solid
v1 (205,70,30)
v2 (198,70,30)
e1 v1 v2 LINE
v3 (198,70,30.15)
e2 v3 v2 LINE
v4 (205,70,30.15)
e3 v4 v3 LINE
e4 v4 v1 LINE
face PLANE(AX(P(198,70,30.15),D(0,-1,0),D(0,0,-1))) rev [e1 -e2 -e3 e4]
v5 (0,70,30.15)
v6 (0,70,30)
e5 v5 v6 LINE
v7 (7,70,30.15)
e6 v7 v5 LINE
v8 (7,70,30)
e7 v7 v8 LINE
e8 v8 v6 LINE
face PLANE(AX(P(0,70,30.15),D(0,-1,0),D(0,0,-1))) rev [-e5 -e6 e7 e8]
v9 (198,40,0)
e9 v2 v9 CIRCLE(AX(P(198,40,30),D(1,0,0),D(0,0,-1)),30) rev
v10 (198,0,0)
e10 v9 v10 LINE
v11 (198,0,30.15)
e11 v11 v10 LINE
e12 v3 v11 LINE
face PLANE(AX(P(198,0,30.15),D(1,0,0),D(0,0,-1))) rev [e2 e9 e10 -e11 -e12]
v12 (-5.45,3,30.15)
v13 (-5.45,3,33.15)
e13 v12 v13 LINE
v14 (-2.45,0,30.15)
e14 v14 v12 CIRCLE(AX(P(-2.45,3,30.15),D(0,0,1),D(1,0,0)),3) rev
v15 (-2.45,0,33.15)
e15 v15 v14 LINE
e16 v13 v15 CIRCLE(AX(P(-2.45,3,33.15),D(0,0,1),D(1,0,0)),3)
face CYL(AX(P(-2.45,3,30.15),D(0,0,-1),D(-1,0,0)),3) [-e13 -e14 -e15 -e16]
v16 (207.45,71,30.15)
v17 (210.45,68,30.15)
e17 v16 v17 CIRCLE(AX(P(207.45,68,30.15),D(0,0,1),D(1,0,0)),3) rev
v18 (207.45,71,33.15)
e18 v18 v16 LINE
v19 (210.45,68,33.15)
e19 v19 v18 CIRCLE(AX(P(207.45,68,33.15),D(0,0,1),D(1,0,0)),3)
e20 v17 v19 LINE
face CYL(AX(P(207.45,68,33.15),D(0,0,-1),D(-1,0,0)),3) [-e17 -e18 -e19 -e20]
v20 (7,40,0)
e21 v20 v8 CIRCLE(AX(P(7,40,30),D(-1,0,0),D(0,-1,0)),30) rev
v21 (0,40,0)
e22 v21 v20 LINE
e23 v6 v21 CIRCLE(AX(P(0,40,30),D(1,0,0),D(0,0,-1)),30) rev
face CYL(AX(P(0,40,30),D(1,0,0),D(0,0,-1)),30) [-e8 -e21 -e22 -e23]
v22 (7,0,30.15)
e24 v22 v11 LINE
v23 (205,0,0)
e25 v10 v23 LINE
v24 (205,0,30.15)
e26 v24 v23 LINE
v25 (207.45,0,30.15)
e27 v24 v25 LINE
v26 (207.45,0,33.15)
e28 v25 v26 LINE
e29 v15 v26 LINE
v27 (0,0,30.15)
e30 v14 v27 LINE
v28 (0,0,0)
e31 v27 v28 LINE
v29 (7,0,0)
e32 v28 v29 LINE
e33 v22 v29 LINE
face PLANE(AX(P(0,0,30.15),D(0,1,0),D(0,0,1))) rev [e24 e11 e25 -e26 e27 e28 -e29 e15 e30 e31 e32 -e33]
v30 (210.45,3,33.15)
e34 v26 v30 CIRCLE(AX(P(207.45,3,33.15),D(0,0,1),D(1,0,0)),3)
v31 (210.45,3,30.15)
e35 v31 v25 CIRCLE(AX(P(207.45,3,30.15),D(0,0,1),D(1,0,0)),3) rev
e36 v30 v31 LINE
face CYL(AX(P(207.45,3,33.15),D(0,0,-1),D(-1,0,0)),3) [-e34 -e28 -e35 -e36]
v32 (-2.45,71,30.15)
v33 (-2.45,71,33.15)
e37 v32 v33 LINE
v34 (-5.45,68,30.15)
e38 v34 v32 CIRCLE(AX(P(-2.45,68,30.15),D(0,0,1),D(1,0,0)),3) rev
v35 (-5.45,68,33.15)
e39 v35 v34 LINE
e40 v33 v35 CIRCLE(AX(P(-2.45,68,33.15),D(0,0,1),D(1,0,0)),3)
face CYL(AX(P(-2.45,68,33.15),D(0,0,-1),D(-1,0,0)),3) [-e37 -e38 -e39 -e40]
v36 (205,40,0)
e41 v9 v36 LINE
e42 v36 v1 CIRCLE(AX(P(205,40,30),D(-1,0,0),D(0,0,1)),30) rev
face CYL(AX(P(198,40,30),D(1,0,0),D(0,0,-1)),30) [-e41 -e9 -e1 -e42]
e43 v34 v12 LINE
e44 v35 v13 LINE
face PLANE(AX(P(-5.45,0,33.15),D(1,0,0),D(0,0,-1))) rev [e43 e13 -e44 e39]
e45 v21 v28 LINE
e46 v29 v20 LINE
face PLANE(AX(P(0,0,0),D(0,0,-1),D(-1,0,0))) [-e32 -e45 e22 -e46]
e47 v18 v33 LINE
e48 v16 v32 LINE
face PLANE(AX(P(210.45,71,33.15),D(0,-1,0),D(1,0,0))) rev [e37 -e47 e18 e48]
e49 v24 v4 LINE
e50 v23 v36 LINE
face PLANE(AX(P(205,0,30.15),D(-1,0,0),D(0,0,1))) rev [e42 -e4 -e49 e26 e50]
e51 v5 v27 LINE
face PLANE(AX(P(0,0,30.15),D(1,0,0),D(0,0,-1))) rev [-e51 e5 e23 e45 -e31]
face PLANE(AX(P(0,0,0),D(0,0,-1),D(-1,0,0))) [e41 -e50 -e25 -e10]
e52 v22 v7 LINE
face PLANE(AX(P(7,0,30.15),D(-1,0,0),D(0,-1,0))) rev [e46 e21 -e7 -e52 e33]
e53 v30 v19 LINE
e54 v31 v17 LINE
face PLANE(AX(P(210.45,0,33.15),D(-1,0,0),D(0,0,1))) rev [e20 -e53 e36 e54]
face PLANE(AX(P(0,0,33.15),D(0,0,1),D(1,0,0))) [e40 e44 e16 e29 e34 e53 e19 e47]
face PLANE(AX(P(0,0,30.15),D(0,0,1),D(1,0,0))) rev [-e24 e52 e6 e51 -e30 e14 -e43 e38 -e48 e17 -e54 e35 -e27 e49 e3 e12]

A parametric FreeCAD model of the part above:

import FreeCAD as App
import Part
import Sketcher
from FreeCAD import Vector


def edges_at(feature, points):
    """Names of the edges that pass closest to the given points."""
    edges = feature.Shape.Edges
    near = lambda p: min(range(len(edges)), key=lambda i: edges[i].distToShape(Part.Vertex(*p))[0])
    return sorted({f"Edge{near(p) + 1}" for p in points})

doc = App.newDocument("Part")
params = doc.addObject("Spreadsheet::Sheet", "Params")
for row, (alias, value) in enumerate([
    ("sketch1_width", "7 mm"),
    ("sketch1_height", "70 mm"),
    ("pad1_length", "30.15 mm"),
    ("fillet_radius", "30 mm"),
    ("sketch2_width", "7 mm"),
    ("sketch2_height", "70 mm"),
    ("pad2_length", "30.15 mm"),
    ("fillet2_radius", "30 mm"),
    ("sketch3_height", "71 mm"),
    ("sketch3_width", "215.9 mm"),
    ("pad3_length", "3 mm"),
    ("fillet3_radius", "3 mm"),
], start=1):
    params.set(f"A{row}", alias)
    params.set(f"B{row}", "=" + value)
    params.setAlias(f"B{row}", alias)

body = doc.addObject("PartDesign::Body", "Body")

# Sketch on XY plane
sketch1 = body.newObject("Sketcher::SketchObject", "Sketch")
sketch1.AttachmentSupport = (doc.getObject("XY_Plane"), [""])
sketch1.MapMode = "FlatFace"
sketch1.addGeometry(Part.LineSegment(Vector(0, 70, 0), Vector(0, 0, 0)), False)
sketch1.addGeometry(Part.LineSegment(Vector(0, 0, 0), Vector(7, 0, 0)), False)
sketch1.addGeometry(Part.LineSegment(Vector(7, 0, 0), Vector(7, 70, 0)), False)
sketch1.addGeometry(Part.LineSegment(Vector(7, 70, 0), Vector(0, 70, 0)), False)
sketch1.addConstraint(Sketcher.Constraint("Coincident", 0, 2, 1, 1))
sketch1.addConstraint(Sketcher.Constraint("Coincident", 1, 2, 2, 1))
sketch1.addConstraint(Sketcher.Constraint("Coincident", 2, 2, 3, 1))
sketch1.addConstraint(Sketcher.Constraint("Coincident", 3, 2, 0, 1))
sketch1.addConstraint(Sketcher.Constraint("Vertical", 0))
sketch1.addConstraint(Sketcher.Constraint("Horizontal", 1))
sketch1.addConstraint(Sketcher.Constraint("Vertical", 2))
sketch1.addConstraint(Sketcher.Constraint("Horizontal", 3))
sketch1.addConstraint(Sketcher.Constraint("Coincident", 0, 2, -1, 1))
sketch1.addConstraint(Sketcher.Constraint("DistanceX", 1, 1, 1, 2, 7.0))
sketch1.addConstraint(Sketcher.Constraint("DistanceY", 0, 2, 0, 1, 70.0))
sketch1.setExpression("Constraints[9]", "Params.sketch1_width")
sketch1.setExpression("Constraints[10]", "Params.sketch1_height")
pad1 = body.newObject("PartDesign::Pad", "Pad")
pad1.Profile = sketch1
pad1.setExpression("Length", "Params.pad1_length")
doc.recompute()

fillet = body.newObject("PartDesign::Fillet", "Fillet")
fillet.Base = (pad1, edges_at(pad1, [(3.5, 70, 0)]))
fillet.setExpression("Radius", "Params.fillet_radius")
body2 = doc.addObject("PartDesign::Body", "Body001")

# Sketch on XY plane
sketch2 = body2.newObject("Sketcher::SketchObject", "Sketch001")
sketch2.AttachmentSupport = (doc.getObject("XY_Plane001"), [""])
sketch2.MapMode = "FlatFace"
sketch2.addGeometry(Part.LineSegment(Vector(198, 70, 0), Vector(198, 0, 0)), False)
sketch2.addGeometry(Part.LineSegment(Vector(198, 0, 0), Vector(205, 0, 0)), False)
sketch2.addGeometry(Part.LineSegment(Vector(205, 0, 0), Vector(205, 70, 0)), False)
sketch2.addGeometry(Part.LineSegment(Vector(205, 70, 0), Vector(198, 70, 0)), False)
sketch2.addConstraint(Sketcher.Constraint("Coincident", 0, 2, 1, 1))
sketch2.addConstraint(Sketcher.Constraint("Coincident", 1, 2, 2, 1))
sketch2.addConstraint(Sketcher.Constraint("Coincident", 2, 2, 3, 1))
sketch2.addConstraint(Sketcher.Constraint("Coincident", 3, 2, 0, 1))
sketch2.addConstraint(Sketcher.Constraint("Vertical", 0))
sketch2.addConstraint(Sketcher.Constraint("Horizontal", 1))
sketch2.addConstraint(Sketcher.Constraint("Vertical", 2))
sketch2.addConstraint(Sketcher.Constraint("Horizontal", 3))
sketch2.addConstraint(Sketcher.Constraint("PointOnObject", 0, 2, -1))
sketch2.addConstraint(Sketcher.Constraint("DistanceX", 1, 1, 1, 2, 7.0))
sketch2.addConstraint(Sketcher.Constraint("DistanceY", 0, 2, 0, 1, 70.0))
sketch2.addConstraint(Sketcher.Constraint("DistanceX", -1, 1, 0, 2, 198.0))
sketch2.setExpression("Constraints[9]", "Params.sketch2_width")
sketch2.setExpression("Constraints[10]", "Params.sketch2_height")
pad2 = body2.newObject("PartDesign::Pad", "Pad001")
pad2.Profile = sketch2
pad2.setExpression("Length", "Params.pad2_length")
doc.recompute()

fillet2 = body2.newObject("PartDesign::Fillet", "Fillet001")
fillet2.Base = (pad2, edges_at(pad2, [(201.5, 70, 0)]))
fillet2.setExpression("Radius", "Params.fillet2_radius")
body.AllowCompound = True
doc.recompute()

boolean = body.newObject("PartDesign::Boolean", "Boolean")
boolean.Type = "Fuse"
boolean.addObjects([body2])

# Sketch on XY plane
sketch3 = body.newObject("Sketcher::SketchObject", "Sketch002")
sketch3.AttachmentSupport = (doc.getObject("XY_Plane"), [""])
sketch3.MapMode = "FlatFace"
sketch3.AttachmentOffset = App.Placement(Vector(0, 0, 30.15), App.Rotation())
sketch3.addGeometry(Part.LineSegment(Vector(-5, 71, 0), Vector(-5, 0, 0)), False)
sketch3.addGeometry(Part.LineSegment(Vector(-5, 0, 0), Vector(210, 0, 0)), False)
sketch3.addGeometry(Part.LineSegment(Vector(210, 0, 0), Vector(210, 71, 0)), False)
sketch3.addGeometry(Part.LineSegment(Vector(210, 71, 0), Vector(-5, 71, 0)), False)
sketch3.addConstraint(Sketcher.Constraint("Coincident", 0, 2, 1, 1))
sketch3.addConstraint(Sketcher.Constraint("Coincident", 1, 2, 2, 1))
sketch3.addConstraint(Sketcher.Constraint("Coincident", 2, 2, 3, 1))
sketch3.addConstraint(Sketcher.Constraint("Coincident", 3, 2, 0, 1))
sketch3.addConstraint(Sketcher.Constraint("Vertical", 0))
sketch3.addConstraint(Sketcher.Constraint("Horizontal", 1))
sketch3.addConstraint(Sketcher.Constraint("Vertical", 2))
sketch3.addConstraint(Sketcher.Constraint("Horizontal", 3))
sketch3.addConstraint(Sketcher.Constraint("PointOnObject", 0, 2, -1))
sketch3.addConstraint(Sketcher.Constraint("DistanceY", 0, 2, 0, 1, 71.0))
sketch3.addConstraint(Sketcher.Constraint("DistanceX", 1, 1, 1, 2, 215.9))
sketch3.addConstraint(Sketcher.Constraint("DistanceX", 0, 2, -1, 1, 5.45))
sketch3.setExpression("Constraints[9]", "Params.sketch3_height")
sketch3.setExpression("Constraints[10]", "Params.sketch3_width")
pad3 = body.newObject("PartDesign::Pad", "Pad002")
pad3.Profile = sketch3
pad3.setExpression("Length", "Params.pad3_length")
doc.recompute()

fillet3 = body.newObject("PartDesign::Fillet", "Fillet002")
fillet3.Base = (pad3, edges_at(pad3, [
    (210.45, 0, 31.65),
    (210.45, 71, 31.65),
    (-5.45, 71, 31.65),
    (-5.45, 0, 31.65),
]))
fillet3.setExpression("Radius", "Params.fillet3_radius")

doc.recompute()
